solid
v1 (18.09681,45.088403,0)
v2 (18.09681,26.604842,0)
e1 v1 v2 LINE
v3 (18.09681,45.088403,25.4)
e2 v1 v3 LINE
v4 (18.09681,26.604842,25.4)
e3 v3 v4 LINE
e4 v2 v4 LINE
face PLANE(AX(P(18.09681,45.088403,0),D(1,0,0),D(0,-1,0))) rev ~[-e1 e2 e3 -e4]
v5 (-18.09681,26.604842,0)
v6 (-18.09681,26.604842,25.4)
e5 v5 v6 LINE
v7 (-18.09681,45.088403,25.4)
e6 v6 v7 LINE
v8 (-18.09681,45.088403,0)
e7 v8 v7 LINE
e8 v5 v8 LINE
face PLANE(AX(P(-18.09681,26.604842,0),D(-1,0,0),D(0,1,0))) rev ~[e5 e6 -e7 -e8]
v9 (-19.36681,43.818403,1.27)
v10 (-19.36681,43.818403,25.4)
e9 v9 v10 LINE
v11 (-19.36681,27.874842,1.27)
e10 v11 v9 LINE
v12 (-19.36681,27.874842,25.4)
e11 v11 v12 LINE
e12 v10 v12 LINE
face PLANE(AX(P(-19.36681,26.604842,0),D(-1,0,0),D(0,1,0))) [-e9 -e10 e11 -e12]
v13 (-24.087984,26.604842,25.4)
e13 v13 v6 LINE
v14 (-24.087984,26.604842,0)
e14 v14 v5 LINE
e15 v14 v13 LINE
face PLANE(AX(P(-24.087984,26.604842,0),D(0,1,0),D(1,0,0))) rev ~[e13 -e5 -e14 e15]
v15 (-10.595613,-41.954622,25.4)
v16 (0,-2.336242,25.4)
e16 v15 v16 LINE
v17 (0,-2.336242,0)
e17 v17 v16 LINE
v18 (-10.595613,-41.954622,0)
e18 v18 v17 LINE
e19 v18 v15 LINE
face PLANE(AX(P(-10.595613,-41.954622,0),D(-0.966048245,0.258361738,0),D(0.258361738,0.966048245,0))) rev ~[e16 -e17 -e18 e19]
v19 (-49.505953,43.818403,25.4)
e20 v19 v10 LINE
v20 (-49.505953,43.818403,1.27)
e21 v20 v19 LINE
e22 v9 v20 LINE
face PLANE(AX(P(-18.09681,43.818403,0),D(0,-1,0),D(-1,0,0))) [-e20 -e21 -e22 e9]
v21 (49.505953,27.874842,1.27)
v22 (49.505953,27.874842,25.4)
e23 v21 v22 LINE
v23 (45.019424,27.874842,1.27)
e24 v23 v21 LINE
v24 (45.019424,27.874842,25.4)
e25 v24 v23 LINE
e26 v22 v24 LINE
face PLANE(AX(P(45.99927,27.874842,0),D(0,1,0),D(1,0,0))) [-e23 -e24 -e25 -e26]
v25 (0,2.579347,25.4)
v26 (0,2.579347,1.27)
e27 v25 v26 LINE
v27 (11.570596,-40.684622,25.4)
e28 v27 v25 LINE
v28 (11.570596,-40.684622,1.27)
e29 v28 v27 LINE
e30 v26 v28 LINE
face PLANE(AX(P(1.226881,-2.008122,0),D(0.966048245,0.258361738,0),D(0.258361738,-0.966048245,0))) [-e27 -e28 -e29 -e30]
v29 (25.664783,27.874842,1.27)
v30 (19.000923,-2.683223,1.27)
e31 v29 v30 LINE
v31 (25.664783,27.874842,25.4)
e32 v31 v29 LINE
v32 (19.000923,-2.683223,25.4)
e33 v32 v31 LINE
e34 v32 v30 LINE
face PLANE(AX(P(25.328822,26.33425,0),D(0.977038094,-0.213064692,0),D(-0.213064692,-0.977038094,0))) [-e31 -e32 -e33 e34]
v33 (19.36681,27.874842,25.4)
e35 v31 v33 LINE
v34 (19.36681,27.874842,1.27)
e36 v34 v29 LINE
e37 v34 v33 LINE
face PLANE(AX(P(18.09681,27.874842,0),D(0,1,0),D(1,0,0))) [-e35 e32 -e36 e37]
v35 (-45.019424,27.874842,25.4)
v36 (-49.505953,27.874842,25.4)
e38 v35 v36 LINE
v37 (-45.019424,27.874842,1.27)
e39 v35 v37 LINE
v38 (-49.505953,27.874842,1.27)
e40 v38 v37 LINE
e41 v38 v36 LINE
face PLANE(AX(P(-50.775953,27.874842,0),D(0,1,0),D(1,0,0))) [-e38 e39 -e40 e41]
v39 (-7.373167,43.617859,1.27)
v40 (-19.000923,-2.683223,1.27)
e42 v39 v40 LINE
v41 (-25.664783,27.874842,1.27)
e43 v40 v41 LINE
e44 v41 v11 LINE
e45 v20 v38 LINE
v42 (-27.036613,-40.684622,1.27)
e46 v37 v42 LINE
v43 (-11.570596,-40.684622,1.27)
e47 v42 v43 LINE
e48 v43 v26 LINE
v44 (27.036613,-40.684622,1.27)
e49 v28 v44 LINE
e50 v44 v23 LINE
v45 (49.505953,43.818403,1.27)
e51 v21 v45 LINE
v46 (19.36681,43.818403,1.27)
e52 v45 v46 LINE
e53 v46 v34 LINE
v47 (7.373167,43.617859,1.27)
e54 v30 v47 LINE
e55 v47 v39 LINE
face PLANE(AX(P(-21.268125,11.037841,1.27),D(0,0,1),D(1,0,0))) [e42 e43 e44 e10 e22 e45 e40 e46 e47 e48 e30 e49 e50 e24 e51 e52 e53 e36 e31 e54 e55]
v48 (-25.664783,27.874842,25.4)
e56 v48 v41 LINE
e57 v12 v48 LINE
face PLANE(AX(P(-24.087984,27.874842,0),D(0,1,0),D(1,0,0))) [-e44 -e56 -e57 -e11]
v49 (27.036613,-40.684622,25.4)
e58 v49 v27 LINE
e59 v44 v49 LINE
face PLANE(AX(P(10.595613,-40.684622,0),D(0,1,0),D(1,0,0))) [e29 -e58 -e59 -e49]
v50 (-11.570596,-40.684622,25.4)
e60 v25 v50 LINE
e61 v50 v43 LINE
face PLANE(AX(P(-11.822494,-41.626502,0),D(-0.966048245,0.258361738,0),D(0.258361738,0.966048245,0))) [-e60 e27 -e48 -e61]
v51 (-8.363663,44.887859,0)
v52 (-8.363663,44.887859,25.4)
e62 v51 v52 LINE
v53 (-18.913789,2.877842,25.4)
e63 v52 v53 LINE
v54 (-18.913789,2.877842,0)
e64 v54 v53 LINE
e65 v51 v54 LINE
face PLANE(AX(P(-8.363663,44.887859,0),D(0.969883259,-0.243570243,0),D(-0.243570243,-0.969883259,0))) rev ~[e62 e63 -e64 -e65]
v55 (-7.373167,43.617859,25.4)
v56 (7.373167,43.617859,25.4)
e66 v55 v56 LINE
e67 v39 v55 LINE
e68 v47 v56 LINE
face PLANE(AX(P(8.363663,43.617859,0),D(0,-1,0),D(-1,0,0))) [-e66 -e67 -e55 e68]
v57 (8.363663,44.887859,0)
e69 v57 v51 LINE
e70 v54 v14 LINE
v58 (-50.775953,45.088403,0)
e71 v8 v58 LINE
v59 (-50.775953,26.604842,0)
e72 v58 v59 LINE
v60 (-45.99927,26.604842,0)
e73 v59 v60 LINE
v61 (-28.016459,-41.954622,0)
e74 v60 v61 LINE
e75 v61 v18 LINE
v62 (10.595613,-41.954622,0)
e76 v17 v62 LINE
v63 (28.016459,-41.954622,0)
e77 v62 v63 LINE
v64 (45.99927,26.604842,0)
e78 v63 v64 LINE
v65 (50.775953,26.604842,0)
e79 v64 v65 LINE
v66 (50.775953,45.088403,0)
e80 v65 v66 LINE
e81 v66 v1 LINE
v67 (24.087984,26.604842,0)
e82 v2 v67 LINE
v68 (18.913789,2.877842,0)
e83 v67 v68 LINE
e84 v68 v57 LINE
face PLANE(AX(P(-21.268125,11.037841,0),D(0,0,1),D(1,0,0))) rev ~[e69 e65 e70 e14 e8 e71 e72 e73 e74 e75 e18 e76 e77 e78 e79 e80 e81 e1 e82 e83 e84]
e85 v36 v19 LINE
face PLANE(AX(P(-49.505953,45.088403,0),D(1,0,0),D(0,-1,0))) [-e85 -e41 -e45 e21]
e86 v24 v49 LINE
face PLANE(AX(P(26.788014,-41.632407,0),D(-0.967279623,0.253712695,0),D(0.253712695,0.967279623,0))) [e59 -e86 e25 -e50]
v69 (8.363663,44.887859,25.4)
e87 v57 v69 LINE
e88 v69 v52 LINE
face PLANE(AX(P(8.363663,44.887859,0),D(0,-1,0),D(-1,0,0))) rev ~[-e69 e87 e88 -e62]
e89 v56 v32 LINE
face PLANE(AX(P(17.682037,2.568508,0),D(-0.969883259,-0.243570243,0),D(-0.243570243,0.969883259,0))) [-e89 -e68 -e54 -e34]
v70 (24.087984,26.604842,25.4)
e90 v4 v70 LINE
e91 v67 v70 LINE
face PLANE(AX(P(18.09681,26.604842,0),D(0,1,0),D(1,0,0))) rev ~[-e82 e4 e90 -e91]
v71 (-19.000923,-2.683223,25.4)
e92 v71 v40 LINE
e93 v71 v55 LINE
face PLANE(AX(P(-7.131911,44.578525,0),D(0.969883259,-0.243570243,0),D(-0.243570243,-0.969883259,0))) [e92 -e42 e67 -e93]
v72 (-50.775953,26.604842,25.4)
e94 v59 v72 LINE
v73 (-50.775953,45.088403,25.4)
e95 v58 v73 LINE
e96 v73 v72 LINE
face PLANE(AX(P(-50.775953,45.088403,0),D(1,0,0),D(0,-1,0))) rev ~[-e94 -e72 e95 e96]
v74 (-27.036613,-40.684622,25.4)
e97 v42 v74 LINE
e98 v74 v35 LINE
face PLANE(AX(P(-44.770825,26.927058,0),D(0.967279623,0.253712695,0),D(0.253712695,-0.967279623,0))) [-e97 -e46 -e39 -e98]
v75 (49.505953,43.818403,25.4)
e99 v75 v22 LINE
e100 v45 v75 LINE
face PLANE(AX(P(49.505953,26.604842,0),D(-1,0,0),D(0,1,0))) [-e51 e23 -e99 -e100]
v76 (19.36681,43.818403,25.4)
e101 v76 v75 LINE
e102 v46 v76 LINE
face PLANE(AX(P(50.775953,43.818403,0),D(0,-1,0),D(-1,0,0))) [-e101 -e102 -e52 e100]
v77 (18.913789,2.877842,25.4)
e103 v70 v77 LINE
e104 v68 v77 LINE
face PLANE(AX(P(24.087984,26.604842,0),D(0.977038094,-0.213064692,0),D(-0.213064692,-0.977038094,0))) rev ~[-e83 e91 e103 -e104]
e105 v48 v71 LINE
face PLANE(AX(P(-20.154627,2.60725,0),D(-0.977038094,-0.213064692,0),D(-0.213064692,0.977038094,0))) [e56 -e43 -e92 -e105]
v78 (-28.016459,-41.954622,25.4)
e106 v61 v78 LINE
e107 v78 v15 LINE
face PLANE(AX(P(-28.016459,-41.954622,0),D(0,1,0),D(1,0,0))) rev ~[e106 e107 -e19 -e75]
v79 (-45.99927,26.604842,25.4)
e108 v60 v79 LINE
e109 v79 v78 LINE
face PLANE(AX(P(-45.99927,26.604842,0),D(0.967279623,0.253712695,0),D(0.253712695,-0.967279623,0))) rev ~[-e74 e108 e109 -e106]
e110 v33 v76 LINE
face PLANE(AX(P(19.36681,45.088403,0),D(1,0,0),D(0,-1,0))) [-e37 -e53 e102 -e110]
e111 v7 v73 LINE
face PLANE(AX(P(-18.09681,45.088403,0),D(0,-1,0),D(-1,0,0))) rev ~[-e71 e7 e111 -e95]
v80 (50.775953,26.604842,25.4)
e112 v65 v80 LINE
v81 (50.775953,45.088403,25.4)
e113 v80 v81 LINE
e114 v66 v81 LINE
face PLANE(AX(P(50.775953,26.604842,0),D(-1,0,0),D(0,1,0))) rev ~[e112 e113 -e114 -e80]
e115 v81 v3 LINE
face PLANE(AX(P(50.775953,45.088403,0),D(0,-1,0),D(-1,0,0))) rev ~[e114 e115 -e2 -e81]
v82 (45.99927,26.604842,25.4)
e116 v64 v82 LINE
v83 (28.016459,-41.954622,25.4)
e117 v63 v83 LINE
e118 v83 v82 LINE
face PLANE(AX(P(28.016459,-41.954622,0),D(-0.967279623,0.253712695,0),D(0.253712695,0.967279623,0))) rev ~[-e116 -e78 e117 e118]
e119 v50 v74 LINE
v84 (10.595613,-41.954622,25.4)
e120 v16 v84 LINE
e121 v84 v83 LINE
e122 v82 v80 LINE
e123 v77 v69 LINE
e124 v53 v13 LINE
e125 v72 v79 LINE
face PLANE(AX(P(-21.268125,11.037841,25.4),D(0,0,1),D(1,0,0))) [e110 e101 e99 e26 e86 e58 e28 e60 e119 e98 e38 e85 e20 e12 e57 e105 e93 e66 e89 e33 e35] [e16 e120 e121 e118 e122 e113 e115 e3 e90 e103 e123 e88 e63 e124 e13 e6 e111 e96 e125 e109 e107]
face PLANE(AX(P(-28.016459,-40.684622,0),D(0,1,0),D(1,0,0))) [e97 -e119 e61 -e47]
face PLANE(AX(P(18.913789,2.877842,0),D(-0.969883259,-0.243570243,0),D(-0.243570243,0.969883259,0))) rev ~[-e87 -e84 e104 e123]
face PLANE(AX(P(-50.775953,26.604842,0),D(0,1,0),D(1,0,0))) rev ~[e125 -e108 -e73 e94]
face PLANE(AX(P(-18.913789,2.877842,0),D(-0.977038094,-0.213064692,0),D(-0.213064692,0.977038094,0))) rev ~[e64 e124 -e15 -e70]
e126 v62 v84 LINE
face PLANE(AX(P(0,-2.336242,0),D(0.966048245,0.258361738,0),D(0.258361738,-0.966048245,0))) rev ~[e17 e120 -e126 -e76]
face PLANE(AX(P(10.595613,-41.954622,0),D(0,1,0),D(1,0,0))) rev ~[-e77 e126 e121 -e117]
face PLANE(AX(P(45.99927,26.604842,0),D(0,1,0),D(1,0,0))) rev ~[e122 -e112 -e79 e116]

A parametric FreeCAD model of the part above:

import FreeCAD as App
import Part
import Sketcher
Q = App.Units.Quantity


def faces_at(feature, points):
    """Names of the faces that lie closest to the given points."""
    faces = feature.Shape.Faces
    near = lambda p: min(range(len(faces)), key=lambda i: faces[i].distToShape(Part.Vertex(*p))[0])
    return sorted({f"Face{near(p) + 1}" for p in points})

doc = App.newDocument("Part")
body = doc.addObject("PartDesign::Body", "Body")

# Sketch on XY plane
sketch1 = body.newObject("Sketcher::SketchObject", "Sketch")
sketch1.AttachmentSupport = (doc.getObject("XY_Plane"), [""])
sketch1.MapMode = "FlatFace"
sketch1.addGeometry(Part.LineSegment(App.Vector(-10.6, -42, 0), App.Vector(0, -2.3, 0)), False)
sketch1.addGeometry(Part.LineSegment(App.Vector(0, -2.3, 0), App.Vector(10.6, -42, 0)), False)
sketch1.addGeometry(Part.LineSegment(App.Vector(10.6, -42, 0), App.Vector(28, -42, 0)), False)
sketch1.addGeometry(Part.LineSegment(App.Vector(28, -42, 0), App.Vector(46, 26.6, 0)), False)
sketch1.addGeometry(Part.LineSegment(App.Vector(46, 26.6, 0), App.Vector(50.8, 26.6, 0)), False)
sketch1.addGeometry(Part.LineSegment(App.Vector(50.8, 26.6, 0), App.Vector(50.8, 45.1, 0)), False)
sketch1.addGeometry(Part.LineSegment(App.Vector(50.8, 45.1, 0), App.Vector(18.1, 45.1, 0)), False)
sketch1.addGeometry(Part.LineSegment(App.Vector(18.1, 45.1, 0), App.Vector(18.1, 26.6, 0)), False)
sketch1.addGeometry(Part.LineSegment(App.Vector(18.1, 26.6, 0), App.Vector(24.1, 26.6, 0)), False)
sketch1.addGeometry(Part.LineSegment(App.Vector(24.1, 26.6, 0), App.Vector(18.9, 2.9, 0)), False)
sketch1.addGeometry(Part.LineSegment(App.Vector(18.9, 2.9, 0), App.Vector(8.4, 44.9, 0)), False)
sketch1.addGeometry(Part.LineSegment(App.Vector(8.4, 44.9, 0), App.Vector(-8.4, 44.9, 0)), False)
sketch1.addGeometry(Part.LineSegment(App.Vector(-8.4, 44.9, 0), App.Vector(-18.9, 2.9, 0)), False)
sketch1.addGeometry(Part.LineSegment(App.Vector(-18.9, 2.9, 0), App.Vector(-24.1, 26.6, 0)), False)
sketch1.addGeometry(Part.LineSegment(App.Vector(-24.1, 26.6, 0), App.Vector(-18.1, 26.6, 0)), False)
sketch1.addGeometry(Part.LineSegment(App.Vector(-18.1, 26.6, 0), App.Vector(-18.1, 45.1, 0)), False)
sketch1.addGeometry(Part.LineSegment(App.Vector(-18.1, 45.1, 0), App.Vector(-50.8, 45.1, 0)), False)
sketch1.addGeometry(Part.LineSegment(App.Vector(-50.8, 45.1, 0), App.Vector(-50.8, 26.6, 0)), False)
sketch1.addGeometry(Part.LineSegment(App.Vector(-50.8, 26.6, 0), App.Vector(-46, 26.6, 0)), False)
sketch1.addGeometry(Part.LineSegment(App.Vector(-46, 26.6, 0), App.Vector(-28, -42, 0)), False)
sketch1.addGeometry(Part.LineSegment(App.Vector(-28, -42, 0), App.Vector(-10.6, -42, 0)), False)
sketch1.addConstraint(Sketcher.Constraint("Coincident", 0, 2, 1, 1))
sketch1.addConstraint(Sketcher.Constraint("Coincident", 1, 2, 2, 1))
sketch1.addConstraint(Sketcher.Constraint("Coincident", 2, 2, 3, 1))
sketch1.addConstraint(Sketcher.Constraint("Coincident", 3, 2, 4, 1))
sketch1.addConstraint(Sketcher.Constraint("Coincident", 4, 2, 5, 1))
sketch1.addConstraint(Sketcher.Constraint("Coincident", 5, 2, 6, 1))
sketch1.addConstraint(Sketcher.Constraint("Coincident", 6, 2, 7, 1))
sketch1.addConstraint(Sketcher.Constraint("Coincident", 7, 2, 8, 1))
sketch1.addConstraint(Sketcher.Constraint("Coincident", 8, 2, 9, 1))
sketch1.addConstraint(Sketcher.Constraint("Coincident", 9, 2, 10, 1))
sketch1.addConstraint(Sketcher.Constraint("Coincident", 10, 2, 11, 1))
sketch1.addConstraint(Sketcher.Constraint("Coincident", 11, 2, 12, 1))
sketch1.addConstraint(Sketcher.Constraint("Coincident", 12, 2, 13, 1))
sketch1.addConstraint(Sketcher.Constraint("Coincident", 13, 2, 14, 1))
sketch1.addConstraint(Sketcher.Constraint("Coincident", 14, 2, 15, 1))
sketch1.addConstraint(Sketcher.Constraint("Coincident", 15, 2, 16, 1))
sketch1.addConstraint(Sketcher.Constraint("Coincident", 16, 2, 17, 1))
sketch1.addConstraint(Sketcher.Constraint("Coincident", 17, 2, 18, 1))
sketch1.addConstraint(Sketcher.Constraint("Coincident", 18, 2, 19, 1))
sketch1.addConstraint(Sketcher.Constraint("Coincident", 19, 2, 20, 1))
sketch1.addConstraint(Sketcher.Constraint("Coincident", 20, 2, 0, 1))
sketch1.addConstraint(Sketcher.Constraint("Horizontal", 2))
sketch1.addConstraint(Sketcher.Constraint("Horizontal", 4))
sketch1.addConstraint(Sketcher.Constraint("Vertical", 5))
sketch1.addConstraint(Sketcher.Constraint("Horizontal", 6))
sketch1.addConstraint(Sketcher.Constraint("Vertical", 7))
sketch1.addConstraint(Sketcher.Constraint("Horizontal", 8))
sketch1.addConstraint(Sketcher.Constraint("Horizontal", 11))
sketch1.addConstraint(Sketcher.Constraint("Horizontal", 14))
sketch1.addConstraint(Sketcher.Constraint("Vertical", 15))
sketch1.addConstraint(Sketcher.Constraint("Horizontal", 16))
sketch1.addConstraint(Sketcher.Constraint("Vertical", 17))
sketch1.addConstraint(Sketcher.Constraint("Horizontal", 18))
sketch1.addConstraint(Sketcher.Constraint("Horizontal", 20))
sketch1.addConstraint(Sketcher.Constraint("Symmetric", 9, 2, 12, 2, -2))
sketch1.addConstraint(Sketcher.Constraint("Symmetric", 8, 2, 13, 2, -2))
sketch1.addConstraint(Sketcher.Constraint("Symmetric", 6, 2, 15, 2, -2))
sketch1.addConstraint(Sketcher.Constraint("Symmetric", 4, 2, 17, 2, -2))
sketch1.addConstraint(Sketcher.Constraint("Symmetric", 2, 2, 19, 2, -2))
sketch1.addConstraint(Sketcher.Constraint("PointOnObject", 0, 2, -2))
sketch1.addConstraint(Sketcher.Constraint("Horizontal", 4, 2, 7, 2))
sketch1.addConstraint(Sketcher.Constraint("Equal", 4, 18))
sketch1.addConstraint(Sketcher.Constraint("Equal", 2, 20))
sketch1.addConstraint(Sketcher.Constraint("Equal", 10, 12))
sketch1.addConstraint(Sketcher.Constraint("DistanceY", 5, 1, 5, 2, Q("18.483561 mm")))
sketch1.addConstraint(Sketcher.Constraint("DistanceY", 9, 2, 7, 2, Q("23.727 mm")))
sketch1.addConstraint(Sketcher.Constraint("DistanceY", 0, 2, 11, 2, Q("47.224101 mm")))
sketch1.addConstraint(Sketcher.Constraint("DistanceX", 12, 2, 7, 2, Q("37.010599 mm")))
sketch1.addConstraint(Sketcher.Constraint("Distance", 3, Q("70.87864 mm")))
sketch1.addConstraint(Sketcher.Constraint("Distance", 9, Q("24.284621 mm")))
sketch1.addConstraint(Sketcher.Constraint("Distance", 10, Q("43.314509 mm")))
sketch1.addConstraint(Sketcher.Constraint("DistanceX", 2, 1, 2, 2, Q("17.420846 mm")))
sketch1.addConstraint(Sketcher.Constraint("DistanceX", 4, 1, 4, 2, Q("4.776683 mm")))
sketch1.addConstraint(Sketcher.Constraint("DistanceX", 6, 2, 6, 1, Q("32.679142 mm")))
sketch1.addConstraint(Sketcher.Constraint("DistanceX", 8, 1, 8, 2, Q("5.991174 mm")))
sketch1.addConstraint(Sketcher.Constraint("DistanceX", 11, 2, 11, 1, Q("16.727326 mm")))
sketch1.addConstraint(Sketcher.Constraint("DistanceY", 0, 2, -1, 1, Q("2.336242 mm")))
sketch1.addConstraint(Sketcher.Constraint("DistanceY", 1, 2, -1, 1, Q("41.954622 mm")))
pad1 = body.newObject("PartDesign::Pad", "Pad")
pad1.Profile = sketch1
pad1.Length = Q("1 in")
doc.recompute()

thickness = body.newObject("PartDesign::Thickness", "Thickness")
thickness.Base = (pad1, faces_at(pad1, [(0, 1.567, 25.4)]))
thickness.Value = Q("0.05 in")
thickness.Reversed = True
thickness.Join = "Intersection"

doc.recompute()
